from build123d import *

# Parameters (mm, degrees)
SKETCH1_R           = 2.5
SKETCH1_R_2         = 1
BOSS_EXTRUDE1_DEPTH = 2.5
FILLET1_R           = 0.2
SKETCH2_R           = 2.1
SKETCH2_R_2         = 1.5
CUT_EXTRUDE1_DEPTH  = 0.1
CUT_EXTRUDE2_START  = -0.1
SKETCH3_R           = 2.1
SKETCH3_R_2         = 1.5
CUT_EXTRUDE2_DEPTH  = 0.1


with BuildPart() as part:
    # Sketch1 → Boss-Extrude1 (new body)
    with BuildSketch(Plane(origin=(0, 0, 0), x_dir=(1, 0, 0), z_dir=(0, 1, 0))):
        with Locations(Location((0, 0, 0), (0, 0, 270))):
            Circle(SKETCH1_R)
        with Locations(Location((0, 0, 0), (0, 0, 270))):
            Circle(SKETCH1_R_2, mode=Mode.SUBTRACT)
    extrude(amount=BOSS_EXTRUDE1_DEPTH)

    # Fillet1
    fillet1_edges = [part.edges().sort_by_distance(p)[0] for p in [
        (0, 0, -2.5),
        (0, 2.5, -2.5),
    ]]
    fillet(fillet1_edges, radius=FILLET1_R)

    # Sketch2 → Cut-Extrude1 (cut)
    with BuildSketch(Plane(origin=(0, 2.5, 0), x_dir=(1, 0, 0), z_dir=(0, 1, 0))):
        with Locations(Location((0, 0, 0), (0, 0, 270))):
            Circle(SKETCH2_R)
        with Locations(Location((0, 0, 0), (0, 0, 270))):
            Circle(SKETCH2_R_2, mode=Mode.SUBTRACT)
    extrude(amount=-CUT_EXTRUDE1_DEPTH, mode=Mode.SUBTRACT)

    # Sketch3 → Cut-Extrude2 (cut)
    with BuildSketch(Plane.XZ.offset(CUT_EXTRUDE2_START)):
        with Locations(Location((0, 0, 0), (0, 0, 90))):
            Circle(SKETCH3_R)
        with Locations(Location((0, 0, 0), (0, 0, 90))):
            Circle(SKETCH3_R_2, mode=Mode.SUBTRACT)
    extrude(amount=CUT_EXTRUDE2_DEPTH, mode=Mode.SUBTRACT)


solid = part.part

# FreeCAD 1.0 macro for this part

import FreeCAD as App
import Part
import Sketcher
from FreeCAD import Vector


def edges_at(feature, points):
    """Names of the edges that pass closest to the given points."""
    edges = feature.Shape.Edges
    near = lambda p: min(range(len(edges)), key=lambda i: edges[i].distToShape(Part.Vertex(*p))[0])
    return sorted({f"Edge{near(p) + 1}" for p in points})

doc = App.newDocument("Part")
params = doc.addObject("Spreadsheet::Sheet", "Params")
for row, (alias, value) in enumerate([
    ("sketch1_diameter", "5 mm"),
    ("sketch1_diameter2", "2 mm"),
    ("pad1_length", "2.5 mm"),
    ("fillet_radius", "0.2 mm"),
    ("sketch2_diameter", "3 mm"),
    ("sketch2_diameter2", "4.2 mm"),
    ("pocket1_length", "0.1 mm"),
    ("sketch3_diameter", "3 mm"),
    ("sketch3_diameter2", "4.2 mm"),
    ("pocket2_length", "0.1 mm"),
], start=1):
    params.set(f"A{row}", alias)
    params.set(f"B{row}", "=" + value)
    params.setAlias(f"B{row}", alias)

body = doc.addObject("PartDesign::Body", "Body")

sketch1 = doc.addObject("Sketcher::SketchObject", "Sketch")
body.addObject(sketch1)
sketch1.AttachmentSupport = (doc.XZ_Plane, [""])
sketch1.MapMode = "FlatFace"
sketch1.addGeometry(Part.Circle(Vector(0, 0, 0), Vector(0, 0, 1), 2.5), False)
sketch1.addGeometry(Part.Circle(Vector(0, 0, 0), Vector(0, 0, 1), 1), False)
sketch1.addConstraint(Sketcher.Constraint("Coincident", 0, 3, -1, 1))
sketch1.addConstraint(Sketcher.Constraint("Coincident", 1, 3, -1, 1))
sketch1.addConstraint(Sketcher.Constraint("Diameter", 0, 5.0))
sketch1.addConstraint(Sketcher.Constraint("Diameter", 1, 2.0))
sketch1.setExpression("Constraints[2]", "Params.sketch1_diameter")
sketch1.setExpression("Constraints[3]", "Params.sketch1_diameter2")
pad1 = doc.addObject("PartDesign::Pad", "Pad")
body.addObject(pad1)
pad1.Profile = sketch1
pad1.setExpression("Length", "Params.pad1_length")
pad1.Reversed = True
doc.recompute()

fillet = doc.addObject("PartDesign::Fillet", "Fillet")
body.addObject(fillet)
fillet.Base = (pad1, edges_at(pad1, [(0, 0, -2.5), (0, 2.5, -2.5)]))
fillet.setExpression("Radius", "Params.fillet_radius")

sketch2 = doc.addObject("Sketcher::SketchObject", "Sketch001")
body.addObject(sketch2)
sketch2.AttachmentSupport = (doc.XZ_Plane, [""])
sketch2.MapMode = "FlatFace"
sketch2.AttachmentOffset = App.Placement(Vector(0, 0, -2.5), App.Rotation())
sketch2.addGeometry(Part.Circle(Vector(0, 0, 0), Vector(0, 0, 1), 2.1), False)
sketch2.addGeometry(Part.Circle(Vector(0, 0, 0), Vector(0, 0, 1), 1.5), False)
sketch2.addConstraint(Sketcher.Constraint("Coincident", 0, 3, -1, 1))
sketch2.addConstraint(Sketcher.Constraint("Coincident", 1, 3, -1, 1))
sketch2.addConstraint(Sketcher.Constraint("Diameter", 1, 3.0))
sketch2.addConstraint(Sketcher.Constraint("Diameter", 0, 4.2))
sketch2.setExpression("Constraints[2]", "Params.sketch2_diameter")
sketch2.setExpression("Constraints[3]", "Params.sketch2_diameter2")
pocket1 = doc.addObject("PartDesign::Pocket", "Pocket")
body.addObject(pocket1)
pocket1.Profile = sketch2
pocket1.setExpression("Length", "Params.pocket1_length")
pocket1.Reversed = True

sketch3 = doc.addObject("Sketcher::SketchObject", "Sketch002")
body.addObject(sketch3)
sketch3.AttachmentSupport = (doc.XZ_Plane, [""])
sketch3.MapMode = "FlatFace"
sketch3.AttachmentOffset = App.Placement(Vector(0, 0, -0.1), App.Rotation())
sketch3.addGeometry(Part.Circle(Vector(0, 0, 0), Vector(0, 0, 1), 2.1), False)
sketch3.addGeometry(Part.Circle(Vector(0, 0, 0), Vector(0, 0, 1), 1.5), False)
sketch3.addConstraint(Sketcher.Constraint("Coincident", 0, 3, -1, 1))
sketch3.addConstraint(Sketcher.Constraint("Coincident", 1, 3, -1, 1))
sketch3.addConstraint(Sketcher.Constraint("Diameter", 1, 3.0))
sketch3.addConstraint(Sketcher.Constraint("Diameter", 0, 4.2))
sketch3.setExpression("Constraints[2]", "Params.sketch3_diameter")
sketch3.setExpression("Constraints[3]", "Params.sketch3_diameter2")
pocket2 = doc.addObject("PartDesign::Pocket", "Pocket001")
body.addObject(pocket2)
pocket2.Profile = sketch3
pocket2.setExpression("Length", "Params.pocket2_length")
pocket2.Reversed = True

doc.recompute()
